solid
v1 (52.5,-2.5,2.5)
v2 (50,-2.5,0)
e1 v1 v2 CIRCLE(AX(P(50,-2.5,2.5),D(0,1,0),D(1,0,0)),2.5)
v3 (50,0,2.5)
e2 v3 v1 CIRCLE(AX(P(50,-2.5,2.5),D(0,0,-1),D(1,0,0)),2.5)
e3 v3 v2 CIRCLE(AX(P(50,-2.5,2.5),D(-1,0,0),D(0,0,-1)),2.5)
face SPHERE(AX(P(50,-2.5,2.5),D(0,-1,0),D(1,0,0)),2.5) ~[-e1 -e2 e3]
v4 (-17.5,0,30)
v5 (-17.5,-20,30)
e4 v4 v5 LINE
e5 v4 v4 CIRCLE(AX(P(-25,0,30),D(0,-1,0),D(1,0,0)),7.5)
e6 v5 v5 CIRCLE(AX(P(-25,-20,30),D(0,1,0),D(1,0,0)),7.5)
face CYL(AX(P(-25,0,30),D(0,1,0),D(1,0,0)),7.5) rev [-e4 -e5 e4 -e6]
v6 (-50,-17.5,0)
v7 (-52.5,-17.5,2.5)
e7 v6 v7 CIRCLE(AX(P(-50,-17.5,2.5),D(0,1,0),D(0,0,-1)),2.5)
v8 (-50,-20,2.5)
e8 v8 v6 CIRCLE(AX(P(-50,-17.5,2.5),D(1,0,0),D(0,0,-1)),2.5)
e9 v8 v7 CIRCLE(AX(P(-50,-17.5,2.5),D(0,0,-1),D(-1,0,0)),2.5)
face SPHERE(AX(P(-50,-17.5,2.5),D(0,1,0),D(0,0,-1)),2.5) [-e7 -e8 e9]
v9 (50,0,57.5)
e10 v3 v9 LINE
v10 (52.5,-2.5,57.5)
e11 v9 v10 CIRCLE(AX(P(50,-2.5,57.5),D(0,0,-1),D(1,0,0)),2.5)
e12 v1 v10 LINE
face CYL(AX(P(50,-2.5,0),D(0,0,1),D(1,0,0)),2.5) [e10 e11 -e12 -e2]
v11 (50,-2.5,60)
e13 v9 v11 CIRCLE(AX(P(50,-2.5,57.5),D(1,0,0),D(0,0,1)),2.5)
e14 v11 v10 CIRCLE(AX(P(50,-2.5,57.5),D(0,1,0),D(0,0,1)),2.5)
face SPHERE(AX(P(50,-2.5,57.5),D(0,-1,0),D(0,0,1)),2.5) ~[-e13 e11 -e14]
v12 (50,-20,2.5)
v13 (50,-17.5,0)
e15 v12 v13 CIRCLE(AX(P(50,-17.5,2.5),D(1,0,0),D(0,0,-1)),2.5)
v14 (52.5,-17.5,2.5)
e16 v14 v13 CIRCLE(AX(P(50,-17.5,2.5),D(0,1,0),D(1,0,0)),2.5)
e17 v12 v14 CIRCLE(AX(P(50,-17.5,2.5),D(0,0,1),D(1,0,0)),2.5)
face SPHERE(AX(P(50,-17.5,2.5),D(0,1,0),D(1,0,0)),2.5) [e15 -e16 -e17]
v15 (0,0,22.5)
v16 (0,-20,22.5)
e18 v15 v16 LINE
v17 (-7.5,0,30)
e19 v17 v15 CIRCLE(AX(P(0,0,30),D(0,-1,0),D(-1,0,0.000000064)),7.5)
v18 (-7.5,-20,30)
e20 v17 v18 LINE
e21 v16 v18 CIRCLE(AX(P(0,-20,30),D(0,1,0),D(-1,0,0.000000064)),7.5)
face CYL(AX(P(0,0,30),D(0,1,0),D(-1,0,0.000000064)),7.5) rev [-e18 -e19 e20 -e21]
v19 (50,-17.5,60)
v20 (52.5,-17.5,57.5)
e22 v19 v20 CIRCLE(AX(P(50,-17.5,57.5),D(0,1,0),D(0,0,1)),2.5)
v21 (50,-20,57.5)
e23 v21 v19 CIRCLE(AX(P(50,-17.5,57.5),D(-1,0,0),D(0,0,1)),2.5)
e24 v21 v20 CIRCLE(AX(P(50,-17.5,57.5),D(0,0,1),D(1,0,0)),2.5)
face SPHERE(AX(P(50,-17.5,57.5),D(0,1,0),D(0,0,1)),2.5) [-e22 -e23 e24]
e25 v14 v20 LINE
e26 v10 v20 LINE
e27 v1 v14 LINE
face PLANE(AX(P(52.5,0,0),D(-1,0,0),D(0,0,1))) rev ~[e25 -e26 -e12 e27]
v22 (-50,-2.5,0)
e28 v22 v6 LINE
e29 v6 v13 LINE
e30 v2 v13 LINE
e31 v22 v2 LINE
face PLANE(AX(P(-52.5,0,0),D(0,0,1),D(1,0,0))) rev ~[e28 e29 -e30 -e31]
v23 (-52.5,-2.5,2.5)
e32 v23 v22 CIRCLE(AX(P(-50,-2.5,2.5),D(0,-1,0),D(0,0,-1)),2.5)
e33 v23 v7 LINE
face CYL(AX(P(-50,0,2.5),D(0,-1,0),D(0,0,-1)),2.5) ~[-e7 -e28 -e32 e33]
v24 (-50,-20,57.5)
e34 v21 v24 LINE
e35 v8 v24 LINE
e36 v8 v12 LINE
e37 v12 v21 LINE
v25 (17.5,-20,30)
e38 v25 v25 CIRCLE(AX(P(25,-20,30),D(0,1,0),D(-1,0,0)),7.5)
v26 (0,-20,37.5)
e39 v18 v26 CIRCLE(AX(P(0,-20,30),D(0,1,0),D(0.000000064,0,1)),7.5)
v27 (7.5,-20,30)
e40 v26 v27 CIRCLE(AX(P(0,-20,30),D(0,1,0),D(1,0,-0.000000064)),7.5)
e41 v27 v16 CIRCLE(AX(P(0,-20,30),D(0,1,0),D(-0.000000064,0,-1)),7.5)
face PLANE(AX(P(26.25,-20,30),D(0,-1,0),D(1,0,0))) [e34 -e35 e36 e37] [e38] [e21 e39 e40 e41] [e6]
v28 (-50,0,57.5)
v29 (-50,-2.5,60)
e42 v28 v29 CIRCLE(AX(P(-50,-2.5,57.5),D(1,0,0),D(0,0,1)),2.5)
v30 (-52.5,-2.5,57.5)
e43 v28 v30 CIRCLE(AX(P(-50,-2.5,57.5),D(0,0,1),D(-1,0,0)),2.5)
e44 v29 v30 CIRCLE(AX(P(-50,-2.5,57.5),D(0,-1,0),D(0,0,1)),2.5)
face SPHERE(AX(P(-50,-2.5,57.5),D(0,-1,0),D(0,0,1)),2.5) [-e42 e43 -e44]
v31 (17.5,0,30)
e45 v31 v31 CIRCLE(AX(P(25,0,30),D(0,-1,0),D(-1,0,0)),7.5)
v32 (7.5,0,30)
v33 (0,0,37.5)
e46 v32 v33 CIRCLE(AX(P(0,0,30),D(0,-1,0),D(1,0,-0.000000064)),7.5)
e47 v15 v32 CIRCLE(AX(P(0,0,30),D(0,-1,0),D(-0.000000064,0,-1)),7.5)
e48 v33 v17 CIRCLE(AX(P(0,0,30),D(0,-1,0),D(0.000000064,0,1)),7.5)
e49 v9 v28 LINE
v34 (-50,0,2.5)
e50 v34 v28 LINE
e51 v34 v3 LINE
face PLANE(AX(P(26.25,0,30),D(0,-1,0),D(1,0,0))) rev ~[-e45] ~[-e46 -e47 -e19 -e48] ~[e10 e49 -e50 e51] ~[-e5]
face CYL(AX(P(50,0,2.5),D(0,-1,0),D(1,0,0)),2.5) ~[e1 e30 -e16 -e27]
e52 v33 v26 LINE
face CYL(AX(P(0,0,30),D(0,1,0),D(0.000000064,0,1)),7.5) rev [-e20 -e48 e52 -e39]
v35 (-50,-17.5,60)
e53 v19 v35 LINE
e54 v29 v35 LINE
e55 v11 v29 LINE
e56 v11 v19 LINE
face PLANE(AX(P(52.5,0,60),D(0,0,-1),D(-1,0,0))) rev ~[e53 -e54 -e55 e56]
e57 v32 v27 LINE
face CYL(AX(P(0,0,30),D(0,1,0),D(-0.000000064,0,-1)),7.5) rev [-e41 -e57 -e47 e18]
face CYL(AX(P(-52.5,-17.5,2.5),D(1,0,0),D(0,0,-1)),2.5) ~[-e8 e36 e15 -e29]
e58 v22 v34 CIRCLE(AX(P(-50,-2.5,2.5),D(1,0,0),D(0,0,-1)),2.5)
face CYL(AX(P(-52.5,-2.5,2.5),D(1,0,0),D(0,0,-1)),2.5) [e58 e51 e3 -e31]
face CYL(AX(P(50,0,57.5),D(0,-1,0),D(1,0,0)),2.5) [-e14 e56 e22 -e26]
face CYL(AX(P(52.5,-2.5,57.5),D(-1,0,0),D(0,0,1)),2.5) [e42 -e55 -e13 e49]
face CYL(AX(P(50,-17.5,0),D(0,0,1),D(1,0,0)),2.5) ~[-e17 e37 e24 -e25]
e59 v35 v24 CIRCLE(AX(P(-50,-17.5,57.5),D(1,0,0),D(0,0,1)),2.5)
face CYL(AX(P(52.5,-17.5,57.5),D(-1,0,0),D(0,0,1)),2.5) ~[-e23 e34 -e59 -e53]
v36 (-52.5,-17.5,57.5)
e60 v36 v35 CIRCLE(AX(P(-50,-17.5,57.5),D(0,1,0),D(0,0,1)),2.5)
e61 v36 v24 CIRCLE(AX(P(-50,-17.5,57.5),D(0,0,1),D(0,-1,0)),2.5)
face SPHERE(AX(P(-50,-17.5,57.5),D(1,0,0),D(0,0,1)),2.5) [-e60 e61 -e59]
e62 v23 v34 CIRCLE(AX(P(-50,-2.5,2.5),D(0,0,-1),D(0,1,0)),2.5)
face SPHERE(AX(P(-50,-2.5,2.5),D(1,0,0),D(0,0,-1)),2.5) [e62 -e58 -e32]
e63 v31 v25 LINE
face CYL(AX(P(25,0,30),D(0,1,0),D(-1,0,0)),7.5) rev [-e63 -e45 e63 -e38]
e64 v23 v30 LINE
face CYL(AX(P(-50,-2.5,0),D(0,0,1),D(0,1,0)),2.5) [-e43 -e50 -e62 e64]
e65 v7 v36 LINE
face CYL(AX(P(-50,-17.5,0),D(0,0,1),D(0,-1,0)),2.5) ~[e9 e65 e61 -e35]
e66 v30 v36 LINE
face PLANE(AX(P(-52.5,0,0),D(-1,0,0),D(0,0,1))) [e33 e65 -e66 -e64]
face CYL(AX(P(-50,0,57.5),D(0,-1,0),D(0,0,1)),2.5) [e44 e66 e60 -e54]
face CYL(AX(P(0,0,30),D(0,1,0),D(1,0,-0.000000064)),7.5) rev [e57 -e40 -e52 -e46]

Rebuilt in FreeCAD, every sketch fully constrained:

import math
import FreeCAD as App
import Part
import Sketcher


def edges_at(feature, points):
    """Names of the edges that pass closest to the given points."""
    edges = feature.Shape.Edges
    near = lambda p: min(range(len(edges)), key=lambda i: edges[i].distToShape(Part.Vertex(*p))[0])
    return sorted({f"Edge{near(p) + 1}" for p in points})


def add_polygon(sketch, points):
    """Adds a closed chain of lines whose ends are joined by coincident constraints."""
    first, n = sketch.GeometryCount, len(points)
    for a, b in zip(points, points[1:] + points[:1]):
        sketch.addGeometry(Part.LineSegment(App.Vector(*a, 0), App.Vector(*b, 0)), False)
    for i in range(n):
        sketch.addConstraint(Sketcher.Constraint("Coincident", first + i, 2, first + (i + 1) % n, 1))

doc = App.newDocument("Part")
body = doc.addObject("PartDesign::Body", "Body")

sketch1 = body.newObject("Sketcher::SketchObject", "Sketch")
sketch1.AttachmentSupport = (doc.getObject("XZ_Plane"), [""])
sketch1.MapMode = "FlatFace"
add_polygon(sketch1, [(52.5, 0), (52.5, 60), (-52.5, 60), (-52.5, 0)])
sketch1.addConstraint([
    Sketcher.Constraint("Vertical", 0),
    Sketcher.Constraint("Horizontal", 1),
    Sketcher.Constraint("Vertical", 2),
    Sketcher.Constraint("Horizontal", 3),
    Sketcher.Constraint("Symmetric", 2, 2, 3, 2, -1, 1),
    Sketcher.Constraint("DistanceX", 1, 2, 1, 1, 105.0),
    Sketcher.Constraint("DistanceY", 0, 1, 0, 2, 60.0),
])
pad1 = body.newObject("PartDesign::Pad", "Pad")
pad1.Profile = sketch1
pad1.Length = 20

sketch2 = body.newObject("Sketcher::SketchObject", "Sketch001")
sketch2.AttachmentSupport = (doc.getObject("XZ_Plane"), [""])
sketch2.MapMode = "FlatFace"
sketch2.addGeometry([
    Part.ArcOfCircle(Part.Circle(App.Vector(0, 30, 0), App.Vector(0, 0, 1), 7.5), math.radians(-0.000004), math.radians(90.000004)),
    Part.ArcOfCircle(Part.Circle(App.Vector(0, 30, 0), App.Vector(0, 0, 1), 7.5), math.radians(89.999996), math.radians(180.000004)),
    Part.ArcOfCircle(Part.Circle(App.Vector(0, 30, 0), App.Vector(0, 0, 1), 7.5), math.radians(179.999996), math.radians(270.000004)),
    Part.ArcOfCircle(Part.Circle(App.Vector(0, 30, 0), App.Vector(0, 0, 1), 7.5), math.radians(-90.000004), math.radians(0.000004)),
    Part.Circle(App.Vector(25, 30, 0), App.Vector(0, 0, 1), 7.5),
    Part.Circle(App.Vector(-25, 30, 0), App.Vector(0, 0, 1), 7.5),
], False)
sketch2.addConstraint([
    Sketcher.Constraint("Tangent", 0, 2, 1, 1),
    Sketcher.Constraint("Tangent", 1, 2, 2, 1),
    Sketcher.Constraint("Tangent", 2, 2, 3, 1),
    Sketcher.Constraint("Tangent", 3, 2, 0, 1),
    Sketcher.Constraint("Equal", 0, 1),
    Sketcher.Constraint("Equal", 3, 4),
    Sketcher.Constraint("Equal", 4, 5),
    Sketcher.Constraint("Symmetric", 4, 3, 5, 3, -2),
    Sketcher.Constraint("Symmetric", 1, 2, 3, 2, -2),
    Sketcher.Constraint("PointOnObject", 0, 2, -2),
    Sketcher.Constraint("PointOnObject", 2, 2, -2),
    Sketcher.Constraint("Horizontal", 3, 3, 4, 3),
    Sketcher.Constraint("Horizontal", 5, 3, 1, 2),
    Sketcher.Constraint("Diameter", 4, 15.0),
    Sketcher.Constraint("DistanceY", -1, 1, 0, 3, 30.0),
    Sketcher.Constraint("DistanceX", -1, 1, 4, 3, 25.0),
])
pocket1 = body.newObject("PartDesign::Pocket", "Pocket")
pocket1.Profile = sketch2
pocket1.Length = 25
pocket1.Reversed = True
doc.recompute()

fillet = body.newObject("PartDesign::Fillet", "Fillet")
fillet.Base = (pocket1, edges_at(pocket1, [
    (52.5, -10, 60),
    (0, -20, 60),
    (-52.5, -10, 60),
    (0, 0, 60),
    (52.5, -10, 0),
    (52.5, 0, 30),
    (52.5, -20, 30),
    (0, 0, 0),
    (-52.5, -10, 0),
    (0, -20, 0),
    (-52.5, 0, 30),
    (-52.5, -20, 30),
]))
fillet.Radius = 2.5

doc.recompute()
